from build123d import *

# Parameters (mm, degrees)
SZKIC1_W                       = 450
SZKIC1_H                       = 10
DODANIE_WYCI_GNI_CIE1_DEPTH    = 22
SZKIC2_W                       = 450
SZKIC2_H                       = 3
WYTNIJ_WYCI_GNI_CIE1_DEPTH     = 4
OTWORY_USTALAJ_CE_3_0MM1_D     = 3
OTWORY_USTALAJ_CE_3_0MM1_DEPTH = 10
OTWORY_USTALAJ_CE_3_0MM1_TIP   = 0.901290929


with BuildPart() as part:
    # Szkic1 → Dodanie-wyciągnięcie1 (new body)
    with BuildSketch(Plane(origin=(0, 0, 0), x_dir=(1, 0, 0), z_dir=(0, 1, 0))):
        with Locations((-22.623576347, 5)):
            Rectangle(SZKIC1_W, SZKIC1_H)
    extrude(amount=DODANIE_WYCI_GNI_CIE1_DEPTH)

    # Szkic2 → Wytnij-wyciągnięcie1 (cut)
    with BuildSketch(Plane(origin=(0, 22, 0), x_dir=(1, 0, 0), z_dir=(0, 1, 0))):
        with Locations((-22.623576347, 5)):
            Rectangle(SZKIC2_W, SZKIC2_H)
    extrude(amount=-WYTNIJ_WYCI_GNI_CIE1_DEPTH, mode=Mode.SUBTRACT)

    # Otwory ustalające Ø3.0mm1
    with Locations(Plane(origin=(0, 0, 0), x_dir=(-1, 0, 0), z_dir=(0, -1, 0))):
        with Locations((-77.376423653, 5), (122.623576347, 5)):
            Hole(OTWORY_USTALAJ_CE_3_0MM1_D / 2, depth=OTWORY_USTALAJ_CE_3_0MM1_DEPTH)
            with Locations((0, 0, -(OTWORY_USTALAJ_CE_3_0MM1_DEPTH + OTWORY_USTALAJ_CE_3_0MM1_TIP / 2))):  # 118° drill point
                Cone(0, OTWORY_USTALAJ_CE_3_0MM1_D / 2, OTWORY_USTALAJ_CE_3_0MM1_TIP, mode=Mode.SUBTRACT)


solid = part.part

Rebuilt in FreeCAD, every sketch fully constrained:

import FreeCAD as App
import Part
import Sketcher
Q = App.Units.Quantity


def add_polygon(sketch, points):
    """Adds a closed chain of lines whose ends are joined by coincident constraints."""
    first, n = sketch.GeometryCount, len(points)
    for a, b in zip(points, points[1:] + points[:1]):
        sketch.addGeometry(Part.LineSegment(App.Vector(*a, 0), App.Vector(*b, 0)), False)
    for i in range(n):
        sketch.addConstraint(Sketcher.Constraint("Coincident", first + i, 2, first + (i + 1) % n, 1))

doc = App.newDocument("Part")
body = doc.addObject("PartDesign::Body", "Body")

# Sketch on XZ plane
sketch1 = body.newObject("Sketcher::SketchObject", "Sketch")
sketch1.AttachmentSupport = (doc.getObject("XZ_Plane"), [""])
sketch1.MapMode = "FlatFace"
add_polygon(sketch1, [(-247.623576, -10), (-247.623576, 0), (202.376424, 0), (202.376424, -10)])  # lines 0-3
sketch1.addConstraint([
    Sketcher.Constraint("Vertical", 0),
    Sketcher.Constraint("Horizontal", 1),
    Sketcher.Constraint("Vertical", 2),
    Sketcher.Constraint("Horizontal", 3),
    Sketcher.Constraint("PointOnObject", 0, 2, -1),
    Sketcher.Constraint("DistanceX", 1, 1, 1, 2, Q("450 mm")),
    Sketcher.Constraint("DistanceY", 0, 1, 0, 2, Q("10 mm")),
    Sketcher.Constraint("DistanceX", 0, 2, -1, 1, Q("247.623576 mm")),
])
pad1 = body.newObject("PartDesign::Pad", "Pad")
pad1.Profile = sketch1
pad1.Length = 22
pad1.Reversed = True

# Sketch on XZ plane
sketch2 = body.newObject("Sketcher::SketchObject", "Sketch001")
sketch2.AttachmentSupport = (doc.getObject("XZ_Plane"), [""])
sketch2.MapMode = "FlatFace"
sketch2.AttachmentOffset = App.Placement(App.Vector(0, 0, -22), App.Rotation())
add_polygon(sketch2, [(-247.623576, -6.5), (-247.623576, -3.5), (202.376424, -3.5), (202.376424, -6.5)])  # lines 0-3
sketch2.addConstraint([
    Sketcher.Constraint("Vertical", 0),
    Sketcher.Constraint("Horizontal", 1),
    Sketcher.Constraint("Vertical", 2),
    Sketcher.Constraint("Horizontal", 3),
    Sketcher.Constraint("DistanceX", 1, 1, 1, 2, Q("450 mm")),
    Sketcher.Constraint("DistanceY", 0, 1, 0, 2, Q("3 mm")),
    Sketcher.Constraint("DistanceY", 0, 2, -1, 1, Q("3.5 mm")),
    Sketcher.Constraint("DistanceX", 0, 2, -1, 1, Q("247.623576 mm")),
])
pocket1 = body.newObject("PartDesign::Pocket", "Pocket")
pocket1.Profile = sketch2
pocket1.Length = 4
pocket1.Reversed = True

# Sketch on XZ plane
sketch3 = body.newObject("Sketcher::SketchObject", "Sketch002")
sketch3.AttachmentSupport = (doc.getObject("XZ_Plane"), [""])
sketch3.MapMode = "FlatFace"
sketch3.addGeometry([
    Part.Circle(App.Vector(77.376424, -5, 0), App.Vector(0, 0, 1), 1.5),
    Part.Circle(App.Vector(-122.623576, -5, 0), App.Vector(0, 0, 1), 1.5),
], False)
sketch3.addConstraint([
    Sketcher.Constraint("Equal", 0, 1),
    Sketcher.Constraint("Horizontal", 0, 3, 1, 3),
    Sketcher.Constraint("Diameter", 0, Q("3 mm")),
    Sketcher.Constraint("DistanceY", 0, 3, -1, 1, Q("5 mm")),
    Sketcher.Constraint("DistanceX", 1, 3, 0, 3, Q("200 mm")),
    Sketcher.Constraint("DistanceX", -1, 1, 0, 3, Q("77.376424 mm")),
])
doc.recompute()
hole = body.newObject("PartDesign::Hole", "Hole")
hole.Profile = sketch3
hole.ThreadType = "None"
hole.Diameter = 3
hole.DepthType = "Dimension"
hole.Depth = 10
hole.DrillPoint = "Angled"
hole.DrillPointAngle = 118

doc.recompute()
